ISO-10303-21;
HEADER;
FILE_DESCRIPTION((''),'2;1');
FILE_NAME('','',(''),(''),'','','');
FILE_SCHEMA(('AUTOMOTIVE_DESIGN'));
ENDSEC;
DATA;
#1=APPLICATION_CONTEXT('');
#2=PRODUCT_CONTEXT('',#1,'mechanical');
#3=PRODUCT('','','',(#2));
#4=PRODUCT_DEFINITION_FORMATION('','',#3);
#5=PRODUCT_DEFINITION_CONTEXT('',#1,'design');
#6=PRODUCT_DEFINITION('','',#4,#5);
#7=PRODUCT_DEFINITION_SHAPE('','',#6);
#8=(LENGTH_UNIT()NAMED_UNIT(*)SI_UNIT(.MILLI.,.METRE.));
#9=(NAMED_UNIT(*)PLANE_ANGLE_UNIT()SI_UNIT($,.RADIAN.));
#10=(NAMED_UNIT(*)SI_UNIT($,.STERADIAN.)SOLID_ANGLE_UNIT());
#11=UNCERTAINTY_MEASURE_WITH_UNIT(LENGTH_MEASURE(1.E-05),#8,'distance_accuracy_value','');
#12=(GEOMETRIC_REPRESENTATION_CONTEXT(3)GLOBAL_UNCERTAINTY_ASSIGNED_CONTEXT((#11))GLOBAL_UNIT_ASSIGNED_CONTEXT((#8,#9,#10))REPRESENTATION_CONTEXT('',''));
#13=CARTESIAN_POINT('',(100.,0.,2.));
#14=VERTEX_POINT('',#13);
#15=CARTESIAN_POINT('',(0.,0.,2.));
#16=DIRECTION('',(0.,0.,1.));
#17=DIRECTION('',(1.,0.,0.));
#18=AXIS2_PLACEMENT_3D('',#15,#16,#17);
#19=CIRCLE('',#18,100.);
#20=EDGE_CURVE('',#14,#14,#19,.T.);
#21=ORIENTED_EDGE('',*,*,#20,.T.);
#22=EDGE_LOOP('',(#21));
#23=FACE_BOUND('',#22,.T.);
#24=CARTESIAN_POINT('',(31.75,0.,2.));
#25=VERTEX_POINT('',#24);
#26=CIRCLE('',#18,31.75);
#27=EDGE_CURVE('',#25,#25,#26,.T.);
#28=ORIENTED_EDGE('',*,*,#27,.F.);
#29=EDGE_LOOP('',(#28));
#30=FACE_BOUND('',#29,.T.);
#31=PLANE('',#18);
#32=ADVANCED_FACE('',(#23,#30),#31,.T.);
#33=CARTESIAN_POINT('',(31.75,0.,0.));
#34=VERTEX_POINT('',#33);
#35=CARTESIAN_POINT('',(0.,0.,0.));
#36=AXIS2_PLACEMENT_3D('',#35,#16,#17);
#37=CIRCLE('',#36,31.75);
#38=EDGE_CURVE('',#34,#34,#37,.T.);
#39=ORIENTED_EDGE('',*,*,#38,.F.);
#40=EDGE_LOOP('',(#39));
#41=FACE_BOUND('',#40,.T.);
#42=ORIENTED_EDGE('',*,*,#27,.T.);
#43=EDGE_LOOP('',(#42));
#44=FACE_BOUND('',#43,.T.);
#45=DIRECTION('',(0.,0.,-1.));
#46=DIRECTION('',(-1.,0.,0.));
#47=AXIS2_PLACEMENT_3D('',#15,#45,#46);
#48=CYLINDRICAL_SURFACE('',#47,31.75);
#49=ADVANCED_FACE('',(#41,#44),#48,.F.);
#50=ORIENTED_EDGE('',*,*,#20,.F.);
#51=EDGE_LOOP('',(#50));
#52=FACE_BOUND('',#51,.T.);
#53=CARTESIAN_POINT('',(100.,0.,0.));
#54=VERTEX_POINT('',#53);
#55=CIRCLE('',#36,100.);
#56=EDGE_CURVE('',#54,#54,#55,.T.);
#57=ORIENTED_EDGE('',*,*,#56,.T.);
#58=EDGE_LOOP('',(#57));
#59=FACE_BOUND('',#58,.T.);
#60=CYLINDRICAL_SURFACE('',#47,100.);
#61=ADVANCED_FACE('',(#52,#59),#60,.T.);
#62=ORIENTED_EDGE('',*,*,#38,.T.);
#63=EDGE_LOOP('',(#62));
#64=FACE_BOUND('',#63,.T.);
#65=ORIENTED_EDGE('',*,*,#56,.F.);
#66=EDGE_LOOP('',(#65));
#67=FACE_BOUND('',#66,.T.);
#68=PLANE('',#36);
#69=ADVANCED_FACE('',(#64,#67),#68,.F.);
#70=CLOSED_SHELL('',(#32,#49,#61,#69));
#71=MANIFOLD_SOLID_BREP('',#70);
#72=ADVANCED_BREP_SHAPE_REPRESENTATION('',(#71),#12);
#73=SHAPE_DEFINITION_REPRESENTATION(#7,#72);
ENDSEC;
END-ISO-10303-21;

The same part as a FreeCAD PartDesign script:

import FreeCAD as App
import Part
import Sketcher
from FreeCAD import Vector
Q = App.Units.Quantity

doc = App.newDocument("Part")
body = doc.addObject("PartDesign::Body", "Body")

sketch1 = body.newObject("Sketcher::SketchObject", "Sketch")
sketch1.AttachmentSupport = (doc.getObject("XY_Plane"), [""])
sketch1.MapMode = "FlatFace"
sketch1.addGeometry([
    Part.Circle(Vector(0, 0, 0), Vector(0, 0, 1), 100),
    Part.Circle(Vector(0, 0, 0), Vector(0, 0, 1), 31.75),
], False)
sketch1.addConstraint([
    Sketcher.Constraint("Coincident", 0, 3, -1, 1),
    Sketcher.Constraint("Coincident", 1, 3, -1, 1),
    Sketcher.Constraint("Diameter", 0, Q("200 mm")),
    Sketcher.Constraint("Diameter", 1, Q("63.5 mm")),
])
pad1 = body.newObject("PartDesign::Pad", "Pad")
pad1.Profile = sketch1
pad1.Length = 2

doc.recompute()
